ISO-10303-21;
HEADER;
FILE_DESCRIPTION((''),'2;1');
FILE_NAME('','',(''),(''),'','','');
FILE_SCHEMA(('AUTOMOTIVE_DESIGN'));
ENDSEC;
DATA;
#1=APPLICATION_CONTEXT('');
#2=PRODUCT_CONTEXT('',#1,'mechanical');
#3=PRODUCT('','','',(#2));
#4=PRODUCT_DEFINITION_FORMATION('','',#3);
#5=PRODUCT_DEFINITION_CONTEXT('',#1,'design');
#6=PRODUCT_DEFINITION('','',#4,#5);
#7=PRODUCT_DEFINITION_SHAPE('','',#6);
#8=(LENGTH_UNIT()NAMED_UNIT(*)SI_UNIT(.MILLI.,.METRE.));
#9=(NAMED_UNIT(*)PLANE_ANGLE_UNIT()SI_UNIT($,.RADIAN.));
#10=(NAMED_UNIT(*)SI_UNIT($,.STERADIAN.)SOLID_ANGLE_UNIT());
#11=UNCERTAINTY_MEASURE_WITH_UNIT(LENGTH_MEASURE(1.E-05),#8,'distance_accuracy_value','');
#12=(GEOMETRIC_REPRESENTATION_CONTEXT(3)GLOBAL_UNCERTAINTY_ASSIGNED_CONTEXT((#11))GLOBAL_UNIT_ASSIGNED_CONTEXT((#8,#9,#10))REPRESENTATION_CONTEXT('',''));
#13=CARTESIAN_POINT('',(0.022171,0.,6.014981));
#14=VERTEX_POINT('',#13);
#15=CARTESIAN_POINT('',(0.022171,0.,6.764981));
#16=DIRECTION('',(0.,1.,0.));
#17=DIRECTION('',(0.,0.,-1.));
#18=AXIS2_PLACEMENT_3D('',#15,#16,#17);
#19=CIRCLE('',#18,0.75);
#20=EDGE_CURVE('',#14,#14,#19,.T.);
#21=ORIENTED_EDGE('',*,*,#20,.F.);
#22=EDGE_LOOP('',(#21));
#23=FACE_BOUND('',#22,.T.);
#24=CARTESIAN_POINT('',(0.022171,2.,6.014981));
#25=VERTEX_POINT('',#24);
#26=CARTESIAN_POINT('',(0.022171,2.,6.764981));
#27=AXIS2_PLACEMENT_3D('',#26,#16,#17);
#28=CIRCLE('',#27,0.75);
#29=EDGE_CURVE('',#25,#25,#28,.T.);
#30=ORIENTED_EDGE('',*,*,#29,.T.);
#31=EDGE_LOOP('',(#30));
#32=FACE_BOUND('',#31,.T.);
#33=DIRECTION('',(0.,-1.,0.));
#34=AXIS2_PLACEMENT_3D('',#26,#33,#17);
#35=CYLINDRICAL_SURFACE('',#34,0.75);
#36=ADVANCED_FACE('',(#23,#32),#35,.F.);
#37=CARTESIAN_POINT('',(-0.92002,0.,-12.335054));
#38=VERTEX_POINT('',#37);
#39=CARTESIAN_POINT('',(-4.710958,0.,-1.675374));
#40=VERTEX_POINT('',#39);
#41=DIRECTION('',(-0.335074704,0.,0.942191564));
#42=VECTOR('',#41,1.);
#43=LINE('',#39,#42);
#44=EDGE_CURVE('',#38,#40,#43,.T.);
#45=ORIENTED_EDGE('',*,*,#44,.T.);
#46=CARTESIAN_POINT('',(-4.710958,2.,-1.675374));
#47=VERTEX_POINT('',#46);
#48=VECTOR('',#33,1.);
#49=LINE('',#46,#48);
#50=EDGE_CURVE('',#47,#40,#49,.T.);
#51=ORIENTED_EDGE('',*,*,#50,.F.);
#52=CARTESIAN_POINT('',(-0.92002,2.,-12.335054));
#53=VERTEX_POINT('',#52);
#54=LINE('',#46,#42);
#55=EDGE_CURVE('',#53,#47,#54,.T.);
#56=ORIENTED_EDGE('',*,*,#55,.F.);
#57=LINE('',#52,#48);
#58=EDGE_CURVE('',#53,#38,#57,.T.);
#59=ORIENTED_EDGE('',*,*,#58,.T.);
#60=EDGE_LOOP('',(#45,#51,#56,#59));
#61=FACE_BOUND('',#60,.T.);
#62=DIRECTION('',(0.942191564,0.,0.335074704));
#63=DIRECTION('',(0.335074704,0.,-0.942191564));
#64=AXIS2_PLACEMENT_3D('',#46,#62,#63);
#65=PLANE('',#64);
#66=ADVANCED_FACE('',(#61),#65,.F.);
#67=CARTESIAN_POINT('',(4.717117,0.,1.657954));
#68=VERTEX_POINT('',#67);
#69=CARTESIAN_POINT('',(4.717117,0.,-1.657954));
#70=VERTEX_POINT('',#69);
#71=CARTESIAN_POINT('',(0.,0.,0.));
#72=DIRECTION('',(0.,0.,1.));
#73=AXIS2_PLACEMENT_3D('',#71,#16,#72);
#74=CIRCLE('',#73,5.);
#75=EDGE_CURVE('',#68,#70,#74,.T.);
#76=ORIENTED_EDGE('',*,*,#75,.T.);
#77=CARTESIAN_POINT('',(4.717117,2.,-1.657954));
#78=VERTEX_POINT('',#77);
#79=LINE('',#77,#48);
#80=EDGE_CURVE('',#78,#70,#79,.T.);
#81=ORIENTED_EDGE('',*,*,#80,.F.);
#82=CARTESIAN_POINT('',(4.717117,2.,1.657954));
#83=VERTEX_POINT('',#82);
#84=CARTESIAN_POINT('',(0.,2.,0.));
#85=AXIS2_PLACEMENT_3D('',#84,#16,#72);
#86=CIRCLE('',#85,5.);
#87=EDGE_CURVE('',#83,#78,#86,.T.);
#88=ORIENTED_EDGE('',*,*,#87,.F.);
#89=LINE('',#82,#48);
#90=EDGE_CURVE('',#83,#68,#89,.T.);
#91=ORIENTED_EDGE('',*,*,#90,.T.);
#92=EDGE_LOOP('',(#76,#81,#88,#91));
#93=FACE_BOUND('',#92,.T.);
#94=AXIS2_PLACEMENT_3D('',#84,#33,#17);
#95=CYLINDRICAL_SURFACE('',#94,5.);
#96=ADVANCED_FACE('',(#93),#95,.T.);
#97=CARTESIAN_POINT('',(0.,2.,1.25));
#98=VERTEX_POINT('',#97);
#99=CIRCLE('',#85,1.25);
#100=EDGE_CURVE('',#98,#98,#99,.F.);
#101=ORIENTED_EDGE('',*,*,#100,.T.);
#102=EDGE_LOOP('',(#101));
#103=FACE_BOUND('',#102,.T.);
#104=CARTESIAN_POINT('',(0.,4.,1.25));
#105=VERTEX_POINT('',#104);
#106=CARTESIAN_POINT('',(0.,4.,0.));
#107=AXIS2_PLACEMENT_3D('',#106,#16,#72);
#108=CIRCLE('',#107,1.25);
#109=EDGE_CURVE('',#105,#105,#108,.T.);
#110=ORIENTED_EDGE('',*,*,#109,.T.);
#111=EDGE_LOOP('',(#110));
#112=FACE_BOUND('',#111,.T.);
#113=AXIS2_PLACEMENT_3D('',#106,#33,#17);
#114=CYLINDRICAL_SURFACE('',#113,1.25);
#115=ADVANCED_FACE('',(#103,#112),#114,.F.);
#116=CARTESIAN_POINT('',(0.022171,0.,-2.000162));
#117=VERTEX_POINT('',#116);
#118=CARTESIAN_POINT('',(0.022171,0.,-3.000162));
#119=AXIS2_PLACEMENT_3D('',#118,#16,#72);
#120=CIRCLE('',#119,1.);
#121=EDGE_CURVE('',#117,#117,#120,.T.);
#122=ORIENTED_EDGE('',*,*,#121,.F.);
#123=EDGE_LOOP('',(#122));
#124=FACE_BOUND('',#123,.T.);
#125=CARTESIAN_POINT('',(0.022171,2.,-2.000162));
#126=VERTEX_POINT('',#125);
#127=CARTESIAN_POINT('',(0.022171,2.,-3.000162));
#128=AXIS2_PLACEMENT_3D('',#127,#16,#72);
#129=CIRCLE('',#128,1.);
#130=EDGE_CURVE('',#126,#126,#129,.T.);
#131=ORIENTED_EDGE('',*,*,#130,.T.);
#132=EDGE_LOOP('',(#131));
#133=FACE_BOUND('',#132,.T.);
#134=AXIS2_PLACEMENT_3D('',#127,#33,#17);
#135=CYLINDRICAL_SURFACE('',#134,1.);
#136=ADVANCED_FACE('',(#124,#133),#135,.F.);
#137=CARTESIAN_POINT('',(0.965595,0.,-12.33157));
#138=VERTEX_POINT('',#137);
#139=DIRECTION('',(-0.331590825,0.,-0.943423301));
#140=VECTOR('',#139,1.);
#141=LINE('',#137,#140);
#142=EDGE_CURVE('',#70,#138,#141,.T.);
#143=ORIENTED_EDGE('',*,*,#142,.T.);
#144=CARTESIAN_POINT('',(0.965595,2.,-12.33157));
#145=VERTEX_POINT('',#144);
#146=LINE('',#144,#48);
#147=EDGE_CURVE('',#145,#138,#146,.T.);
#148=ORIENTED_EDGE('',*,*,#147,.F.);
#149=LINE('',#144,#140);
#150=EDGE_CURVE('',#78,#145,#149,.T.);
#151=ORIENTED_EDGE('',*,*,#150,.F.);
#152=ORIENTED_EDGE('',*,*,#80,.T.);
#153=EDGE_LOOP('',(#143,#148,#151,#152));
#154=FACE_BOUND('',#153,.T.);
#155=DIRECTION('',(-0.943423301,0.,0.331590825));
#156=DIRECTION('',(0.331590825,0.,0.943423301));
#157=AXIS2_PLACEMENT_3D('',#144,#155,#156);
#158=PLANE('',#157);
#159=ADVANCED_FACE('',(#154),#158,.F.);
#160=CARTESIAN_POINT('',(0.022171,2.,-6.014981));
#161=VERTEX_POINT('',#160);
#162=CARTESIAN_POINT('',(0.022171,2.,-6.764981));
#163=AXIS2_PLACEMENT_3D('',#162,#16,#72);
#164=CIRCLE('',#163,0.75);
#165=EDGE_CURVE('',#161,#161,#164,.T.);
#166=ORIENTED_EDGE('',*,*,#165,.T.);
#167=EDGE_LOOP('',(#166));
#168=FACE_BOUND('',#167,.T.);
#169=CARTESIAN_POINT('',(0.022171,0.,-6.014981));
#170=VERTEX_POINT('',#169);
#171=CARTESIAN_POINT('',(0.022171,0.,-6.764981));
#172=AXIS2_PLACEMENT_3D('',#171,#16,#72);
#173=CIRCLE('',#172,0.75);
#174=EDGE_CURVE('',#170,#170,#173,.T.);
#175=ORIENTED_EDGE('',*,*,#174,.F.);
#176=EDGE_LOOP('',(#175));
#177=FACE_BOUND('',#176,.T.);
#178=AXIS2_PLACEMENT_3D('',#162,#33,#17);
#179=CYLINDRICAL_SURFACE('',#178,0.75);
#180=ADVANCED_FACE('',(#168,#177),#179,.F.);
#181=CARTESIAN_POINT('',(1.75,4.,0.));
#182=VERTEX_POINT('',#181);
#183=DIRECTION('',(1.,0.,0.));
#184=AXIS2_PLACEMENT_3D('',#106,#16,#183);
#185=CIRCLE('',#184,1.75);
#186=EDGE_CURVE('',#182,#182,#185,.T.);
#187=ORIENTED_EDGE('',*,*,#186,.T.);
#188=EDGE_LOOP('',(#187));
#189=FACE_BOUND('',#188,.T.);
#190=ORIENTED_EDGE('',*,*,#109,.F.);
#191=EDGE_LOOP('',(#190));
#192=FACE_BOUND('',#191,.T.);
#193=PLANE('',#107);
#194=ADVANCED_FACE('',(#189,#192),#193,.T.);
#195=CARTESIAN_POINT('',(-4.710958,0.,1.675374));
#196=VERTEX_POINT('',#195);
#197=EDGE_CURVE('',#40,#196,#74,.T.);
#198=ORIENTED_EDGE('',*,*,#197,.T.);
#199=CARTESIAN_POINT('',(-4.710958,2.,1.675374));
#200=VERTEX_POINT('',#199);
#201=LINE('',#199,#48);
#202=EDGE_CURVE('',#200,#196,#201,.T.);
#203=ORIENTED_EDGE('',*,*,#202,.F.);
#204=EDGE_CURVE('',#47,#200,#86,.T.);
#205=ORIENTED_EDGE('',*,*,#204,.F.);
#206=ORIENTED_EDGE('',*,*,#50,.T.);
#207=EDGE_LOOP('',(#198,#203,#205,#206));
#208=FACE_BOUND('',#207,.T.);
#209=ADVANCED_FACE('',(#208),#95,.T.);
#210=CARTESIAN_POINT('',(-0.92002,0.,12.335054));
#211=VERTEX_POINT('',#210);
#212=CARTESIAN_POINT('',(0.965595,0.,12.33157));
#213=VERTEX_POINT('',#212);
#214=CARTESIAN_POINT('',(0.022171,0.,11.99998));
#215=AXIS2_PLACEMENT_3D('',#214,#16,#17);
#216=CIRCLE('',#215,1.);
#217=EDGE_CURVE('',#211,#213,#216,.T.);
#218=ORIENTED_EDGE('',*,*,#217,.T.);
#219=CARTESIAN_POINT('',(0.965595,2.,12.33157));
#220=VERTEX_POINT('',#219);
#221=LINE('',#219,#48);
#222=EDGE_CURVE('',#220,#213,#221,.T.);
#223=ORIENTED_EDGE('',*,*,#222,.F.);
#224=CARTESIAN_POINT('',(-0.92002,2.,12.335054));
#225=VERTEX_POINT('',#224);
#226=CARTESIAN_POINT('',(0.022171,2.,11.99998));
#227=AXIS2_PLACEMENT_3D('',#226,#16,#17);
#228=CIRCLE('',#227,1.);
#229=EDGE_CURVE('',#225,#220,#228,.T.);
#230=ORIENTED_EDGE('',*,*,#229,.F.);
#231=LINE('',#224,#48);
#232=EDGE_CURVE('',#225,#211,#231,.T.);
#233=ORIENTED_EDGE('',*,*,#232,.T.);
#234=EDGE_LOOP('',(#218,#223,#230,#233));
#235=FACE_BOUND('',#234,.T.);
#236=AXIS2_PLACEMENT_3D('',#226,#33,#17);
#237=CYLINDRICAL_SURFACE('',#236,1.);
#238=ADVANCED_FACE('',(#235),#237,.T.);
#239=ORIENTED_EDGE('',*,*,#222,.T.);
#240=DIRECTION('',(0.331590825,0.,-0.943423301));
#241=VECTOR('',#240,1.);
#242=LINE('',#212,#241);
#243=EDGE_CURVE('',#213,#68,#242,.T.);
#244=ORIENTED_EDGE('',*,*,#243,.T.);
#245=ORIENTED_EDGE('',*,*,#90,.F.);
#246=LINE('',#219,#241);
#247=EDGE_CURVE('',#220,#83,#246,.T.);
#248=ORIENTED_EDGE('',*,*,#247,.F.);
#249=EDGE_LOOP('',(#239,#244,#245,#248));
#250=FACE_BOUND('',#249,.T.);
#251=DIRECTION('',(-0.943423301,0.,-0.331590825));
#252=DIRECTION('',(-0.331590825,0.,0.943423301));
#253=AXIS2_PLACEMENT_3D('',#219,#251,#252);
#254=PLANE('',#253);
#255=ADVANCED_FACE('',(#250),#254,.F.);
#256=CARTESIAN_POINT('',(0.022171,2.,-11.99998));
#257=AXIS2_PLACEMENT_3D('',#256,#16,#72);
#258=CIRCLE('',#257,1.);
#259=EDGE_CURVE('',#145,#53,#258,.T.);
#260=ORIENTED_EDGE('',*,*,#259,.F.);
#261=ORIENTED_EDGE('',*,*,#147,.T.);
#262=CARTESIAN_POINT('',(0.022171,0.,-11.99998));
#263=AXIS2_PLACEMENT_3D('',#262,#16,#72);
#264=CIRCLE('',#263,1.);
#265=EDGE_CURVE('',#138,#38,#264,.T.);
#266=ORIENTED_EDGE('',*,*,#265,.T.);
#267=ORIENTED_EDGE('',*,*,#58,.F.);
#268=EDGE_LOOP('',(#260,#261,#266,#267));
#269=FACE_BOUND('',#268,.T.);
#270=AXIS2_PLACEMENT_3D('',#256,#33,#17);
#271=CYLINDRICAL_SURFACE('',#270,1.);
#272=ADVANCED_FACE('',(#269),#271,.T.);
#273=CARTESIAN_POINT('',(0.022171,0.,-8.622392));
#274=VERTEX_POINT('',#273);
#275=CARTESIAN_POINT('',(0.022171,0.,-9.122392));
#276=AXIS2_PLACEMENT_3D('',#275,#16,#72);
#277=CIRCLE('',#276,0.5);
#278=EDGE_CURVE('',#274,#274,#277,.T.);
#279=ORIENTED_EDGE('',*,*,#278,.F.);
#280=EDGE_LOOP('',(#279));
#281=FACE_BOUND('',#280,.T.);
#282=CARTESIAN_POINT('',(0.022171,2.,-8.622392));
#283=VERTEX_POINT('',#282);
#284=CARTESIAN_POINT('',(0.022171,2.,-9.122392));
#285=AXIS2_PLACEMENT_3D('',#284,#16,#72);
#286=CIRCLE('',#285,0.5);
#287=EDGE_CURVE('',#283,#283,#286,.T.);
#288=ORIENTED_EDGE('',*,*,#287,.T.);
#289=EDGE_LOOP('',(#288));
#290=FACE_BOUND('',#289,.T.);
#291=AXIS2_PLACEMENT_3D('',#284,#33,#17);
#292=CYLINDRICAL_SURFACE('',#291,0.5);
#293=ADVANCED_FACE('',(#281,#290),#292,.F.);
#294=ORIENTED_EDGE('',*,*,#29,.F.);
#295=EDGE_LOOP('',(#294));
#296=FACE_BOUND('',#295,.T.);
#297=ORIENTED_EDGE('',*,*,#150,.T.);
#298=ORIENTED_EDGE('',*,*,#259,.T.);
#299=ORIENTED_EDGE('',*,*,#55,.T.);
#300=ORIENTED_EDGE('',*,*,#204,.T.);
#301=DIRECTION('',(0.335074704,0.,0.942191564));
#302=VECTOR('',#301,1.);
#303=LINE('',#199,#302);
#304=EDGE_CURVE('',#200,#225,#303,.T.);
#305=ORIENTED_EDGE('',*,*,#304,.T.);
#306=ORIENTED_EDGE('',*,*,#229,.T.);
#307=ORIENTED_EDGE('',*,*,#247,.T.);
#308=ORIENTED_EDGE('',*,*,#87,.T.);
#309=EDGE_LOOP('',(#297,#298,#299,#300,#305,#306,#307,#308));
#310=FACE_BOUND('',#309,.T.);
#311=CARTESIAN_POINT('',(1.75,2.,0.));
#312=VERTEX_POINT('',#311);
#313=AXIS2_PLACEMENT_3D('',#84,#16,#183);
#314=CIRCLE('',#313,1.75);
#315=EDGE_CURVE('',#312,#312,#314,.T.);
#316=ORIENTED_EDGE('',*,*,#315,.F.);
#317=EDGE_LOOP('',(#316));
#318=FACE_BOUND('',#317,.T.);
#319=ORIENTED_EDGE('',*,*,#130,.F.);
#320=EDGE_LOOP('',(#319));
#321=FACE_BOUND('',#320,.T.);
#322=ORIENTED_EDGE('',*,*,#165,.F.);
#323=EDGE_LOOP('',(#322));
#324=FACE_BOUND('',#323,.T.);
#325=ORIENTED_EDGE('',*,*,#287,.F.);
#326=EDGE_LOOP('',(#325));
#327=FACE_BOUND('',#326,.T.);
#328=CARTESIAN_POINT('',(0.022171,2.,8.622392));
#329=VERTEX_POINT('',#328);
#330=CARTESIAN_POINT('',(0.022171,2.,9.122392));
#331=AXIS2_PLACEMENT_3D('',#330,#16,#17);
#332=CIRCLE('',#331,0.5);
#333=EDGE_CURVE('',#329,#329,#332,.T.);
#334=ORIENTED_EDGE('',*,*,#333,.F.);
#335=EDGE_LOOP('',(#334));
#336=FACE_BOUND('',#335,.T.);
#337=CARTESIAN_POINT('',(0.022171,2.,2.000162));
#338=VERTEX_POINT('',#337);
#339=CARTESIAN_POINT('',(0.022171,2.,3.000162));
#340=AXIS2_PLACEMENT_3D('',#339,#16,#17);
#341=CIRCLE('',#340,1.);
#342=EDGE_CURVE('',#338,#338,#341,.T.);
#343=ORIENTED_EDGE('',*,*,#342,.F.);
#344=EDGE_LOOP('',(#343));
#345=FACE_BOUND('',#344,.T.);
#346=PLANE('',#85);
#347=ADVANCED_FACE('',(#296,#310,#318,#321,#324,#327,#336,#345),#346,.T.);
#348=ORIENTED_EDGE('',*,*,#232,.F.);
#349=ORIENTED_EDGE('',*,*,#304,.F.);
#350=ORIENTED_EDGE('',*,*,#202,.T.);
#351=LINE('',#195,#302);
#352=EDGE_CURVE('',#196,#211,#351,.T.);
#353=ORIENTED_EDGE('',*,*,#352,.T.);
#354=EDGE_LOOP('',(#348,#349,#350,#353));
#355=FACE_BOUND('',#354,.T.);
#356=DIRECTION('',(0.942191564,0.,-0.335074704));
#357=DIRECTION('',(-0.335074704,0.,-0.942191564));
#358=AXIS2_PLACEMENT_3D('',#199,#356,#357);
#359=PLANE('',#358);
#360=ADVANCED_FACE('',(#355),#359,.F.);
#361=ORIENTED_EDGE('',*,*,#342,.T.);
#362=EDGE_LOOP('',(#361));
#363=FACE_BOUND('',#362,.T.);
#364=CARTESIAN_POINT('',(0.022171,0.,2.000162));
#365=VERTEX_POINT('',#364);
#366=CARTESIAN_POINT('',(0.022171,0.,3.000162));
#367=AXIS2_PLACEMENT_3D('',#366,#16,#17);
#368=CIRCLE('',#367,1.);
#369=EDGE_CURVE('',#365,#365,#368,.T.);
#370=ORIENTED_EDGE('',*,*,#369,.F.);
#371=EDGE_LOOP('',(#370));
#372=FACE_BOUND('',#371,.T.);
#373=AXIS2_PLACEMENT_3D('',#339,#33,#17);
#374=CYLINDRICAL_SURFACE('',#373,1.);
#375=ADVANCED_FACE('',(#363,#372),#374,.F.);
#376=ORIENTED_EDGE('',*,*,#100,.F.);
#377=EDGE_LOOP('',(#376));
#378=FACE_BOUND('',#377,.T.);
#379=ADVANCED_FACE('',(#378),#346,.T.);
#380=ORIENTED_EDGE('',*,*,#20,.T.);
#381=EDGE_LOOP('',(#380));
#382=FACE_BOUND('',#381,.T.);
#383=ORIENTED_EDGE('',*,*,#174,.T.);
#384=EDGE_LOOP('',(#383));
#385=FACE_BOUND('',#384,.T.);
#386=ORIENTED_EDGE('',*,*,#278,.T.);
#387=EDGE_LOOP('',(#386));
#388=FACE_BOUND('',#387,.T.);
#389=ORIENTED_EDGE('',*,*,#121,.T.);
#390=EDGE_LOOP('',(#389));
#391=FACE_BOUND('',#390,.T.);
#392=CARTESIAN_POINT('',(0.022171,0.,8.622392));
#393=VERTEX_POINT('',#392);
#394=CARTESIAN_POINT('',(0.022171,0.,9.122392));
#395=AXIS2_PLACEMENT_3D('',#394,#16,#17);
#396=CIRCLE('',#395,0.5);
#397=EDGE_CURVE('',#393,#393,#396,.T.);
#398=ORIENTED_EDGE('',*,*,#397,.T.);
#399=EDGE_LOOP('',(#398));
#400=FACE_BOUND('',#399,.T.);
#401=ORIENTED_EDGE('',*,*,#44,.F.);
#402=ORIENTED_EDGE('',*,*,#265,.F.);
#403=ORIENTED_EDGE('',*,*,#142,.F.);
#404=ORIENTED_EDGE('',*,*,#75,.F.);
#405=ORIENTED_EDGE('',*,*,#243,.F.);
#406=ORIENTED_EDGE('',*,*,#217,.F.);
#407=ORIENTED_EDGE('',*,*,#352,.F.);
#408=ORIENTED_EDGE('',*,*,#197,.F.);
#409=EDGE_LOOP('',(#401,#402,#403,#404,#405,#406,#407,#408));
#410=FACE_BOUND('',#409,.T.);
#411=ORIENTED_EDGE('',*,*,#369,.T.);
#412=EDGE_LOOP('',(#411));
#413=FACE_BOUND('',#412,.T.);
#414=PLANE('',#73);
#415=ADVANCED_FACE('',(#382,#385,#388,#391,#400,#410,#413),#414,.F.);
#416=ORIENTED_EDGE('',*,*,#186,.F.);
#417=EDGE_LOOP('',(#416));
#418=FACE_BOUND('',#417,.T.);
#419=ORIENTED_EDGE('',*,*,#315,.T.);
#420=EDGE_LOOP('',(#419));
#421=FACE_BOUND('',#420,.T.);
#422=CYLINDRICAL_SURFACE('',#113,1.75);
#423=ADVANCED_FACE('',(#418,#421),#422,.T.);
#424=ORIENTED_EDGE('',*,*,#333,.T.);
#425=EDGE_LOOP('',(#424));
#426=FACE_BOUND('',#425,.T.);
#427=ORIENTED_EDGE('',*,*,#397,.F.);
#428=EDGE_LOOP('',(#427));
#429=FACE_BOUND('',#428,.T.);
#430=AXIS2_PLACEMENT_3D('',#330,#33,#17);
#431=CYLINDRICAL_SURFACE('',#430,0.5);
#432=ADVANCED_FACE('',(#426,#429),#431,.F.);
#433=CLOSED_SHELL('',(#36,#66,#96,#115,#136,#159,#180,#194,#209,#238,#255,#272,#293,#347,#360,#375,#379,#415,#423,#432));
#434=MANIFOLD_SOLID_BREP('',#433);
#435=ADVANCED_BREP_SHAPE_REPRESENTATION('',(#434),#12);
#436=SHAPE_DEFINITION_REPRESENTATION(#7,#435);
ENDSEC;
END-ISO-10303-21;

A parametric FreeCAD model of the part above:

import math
import FreeCAD as App
import Part
import Sketcher

V = App.Vector

doc = App.newDocument("Part")
body = doc.addObject("PartDesign::Body", "Body")

sketch1 = body.newObject("Sketcher::SketchObject", "Sketch")
sketch1.AttachmentSupport = (doc.getObject("XZ_Plane"), [""])
sketch1.MapMode = "FlatFace"
sketch1.addGeometry(Part.LineSegment(V(-0.92002, -12.335054, 0), V(-4.710958, -1.675374, 0)), False)
sketch1.addGeometry(Part.ArcOfCircle(Part.Circle(V(0, 0, 0), V(0, 0, 1), 5), math.radians(160.422919), math.radians(199.577081)), False)
sketch1.addGeometry(Part.LineSegment(V(-4.710958, 1.675374, 0), V(-0.92002, 12.335054, 0)), False)
sketch1.addGeometry(Part.ArcOfCircle(Part.Circle(V(0.022171, 11.99998, 0), V(0, 0, 1), 1), math.radians(19.365361), math.radians(160.422919)), False)
sketch1.addGeometry(Part.LineSegment(V(0.965595, 12.33157, 0), V(4.717117, 1.657954, 0)), False)
sketch1.addGeometry(Part.ArcOfCircle(Part.Circle(V(0, 0, 0), V(0, 0, 1), 5), math.radians(-19.365361), math.radians(19.365361)), False)
sketch1.addGeometry(Part.LineSegment(V(4.717117, -1.657954, 0), V(0.965595, -12.33157, 0)), False)
sketch1.addGeometry(Part.ArcOfCircle(Part.Circle(V(0.022171, -11.99998, 0), V(0, 0, 1), 1), math.radians(-160.422919), math.radians(-19.365361)), False)
sketch1.addGeometry(Part.Circle(V(0.022171, 9.122392, 0), V(0, 0, 1), 0.5), False)
sketch1.addGeometry(Part.Circle(V(0.022171, 6.764981, 0), V(0, 0, 1), 0.75), False)
sketch1.addGeometry(Part.Circle(V(0.022171, 3.000162, 0), V(0, 0, 1), 1), False)
sketch1.addGeometry(Part.Circle(V(0.022171, -3.000162, 0), V(0, 0, 1), 1), False)
sketch1.addGeometry(Part.Circle(V(0.022171, -6.764981, 0), V(0, 0, 1), 0.75), False)
sketch1.addGeometry(Part.Circle(V(0.022171, -9.122392, 0), V(0, 0, 1), 0.5), False)
sketch1.addConstraint(Sketcher.Constraint("Tangent", 0, 2, 1, 2))
sketch1.addConstraint(Sketcher.Constraint("Tangent", 1, 1, 2, 1))
sketch1.addConstraint(Sketcher.Constraint("Tangent", 2, 2, 3, 2))
sketch1.addConstraint(Sketcher.Constraint("Tangent", 3, 1, 4, 1))
sketch1.addConstraint(Sketcher.Constraint("Tangent", 4, 2, 5, 2))
sketch1.addConstraint(Sketcher.Constraint("Tangent", 5, 1, 6, 1))
sketch1.addConstraint(Sketcher.Constraint("Tangent", 6, 2, 7, 2))
sketch1.addConstraint(Sketcher.Constraint("Tangent", 7, 1, 0, 1))
sketch1.addConstraint(Sketcher.Constraint("Coincident", 1, 3, -1, 1))
sketch1.addConstraint(Sketcher.Constraint("Coincident", 5, 3, -1, 1))
sketch1.addConstraint(Sketcher.Constraint("Equal", 1, 5))
sketch1.addConstraint(Sketcher.Constraint("Equal", 3, 7))
sketch1.addConstraint(Sketcher.Constraint("Equal", 7, 10))
sketch1.addConstraint(Sketcher.Constraint("Equal", 10, 11))
sketch1.addConstraint(Sketcher.Constraint("Equal", 9, 12))
sketch1.addConstraint(Sketcher.Constraint("Equal", 8, 13))
sketch1.addConstraint(Sketcher.Constraint("Symmetric", 3, 3, 7, 3, -1))
sketch1.addConstraint(Sketcher.Constraint("Symmetric", 10, 3, 11, 3, -1))
sketch1.addConstraint(Sketcher.Constraint("Symmetric", 9, 3, 12, 3, -1))
sketch1.addConstraint(Sketcher.Constraint("Symmetric", 8, 3, 13, 3, -1))
sketch1.addConstraint(Sketcher.Constraint("Vertical", 7, 3, 8, 3))
sketch1.addConstraint(Sketcher.Constraint("Vertical", 8, 3, 9, 3))
sketch1.addConstraint(Sketcher.Constraint("Vertical", 9, 3, 10, 3))
sketch1.addConstraint(Sketcher.Constraint("Diameter", 8, 1.0))
sketch1.addConstraint(Sketcher.Constraint("Diameter", 10, 2.0))
sketch1.addConstraint(Sketcher.Constraint("Radius", 1, 5.0))
sketch1.addConstraint(Sketcher.Constraint("Diameter", 9, 1.5))
sketch1.addConstraint(Sketcher.Constraint("DistanceY", 9, 3, 3, 3, 5.234998))
sketch1.addConstraint(Sketcher.Constraint("Distance", 0, 11.313708))
sketch1.addConstraint(Sketcher.Constraint("DistanceX", -1, 1, 3, 3, 0.022171))
sketch1.addConstraint(Sketcher.Constraint("DistanceY", -1, 1, 8, 3, 9.122392))
sketch1.addConstraint(Sketcher.Constraint("DistanceY", 10, 3, 9, 3, 3.764819))
pad1 = body.newObject("PartDesign::Pad", "Pad")
pad1.Profile = sketch1
pad1.Length = 2
pad1.Reversed = True

sketch2 = body.newObject("Sketcher::SketchObject", "Sketch001")
sketch2.AttachmentSupport = (doc.getObject("XZ_Plane"), [""])
sketch2.MapMode = "FlatFace"
sketch2.AttachmentOffset = App.Placement(V(0, 0, -2), App.Rotation())
sketch2.addGeometry(Part.Circle(V(0, 0, 0), V(0, 0, 1), 1.75), False)
sketch2.addGeometry(Part.Circle(V(0, 0, 0), V(0, 0, 1), 1.25), False)
sketch2.addConstraint(Sketcher.Constraint("Coincident", 0, 3, -1, 1))
sketch2.addConstraint(Sketcher.Constraint("Coincident", 1, 3, -1, 1))
sketch2.addConstraint(Sketcher.Constraint("Diameter", 0, 3.5))
sketch2.addConstraint(Sketcher.Constraint("Diameter", 1, 2.5))
pad2 = body.newObject("PartDesign::Pad", "Pad001")
pad2.Profile = sketch2
pad2.Length = 2
pad2.Reversed = True

doc.recompute()
